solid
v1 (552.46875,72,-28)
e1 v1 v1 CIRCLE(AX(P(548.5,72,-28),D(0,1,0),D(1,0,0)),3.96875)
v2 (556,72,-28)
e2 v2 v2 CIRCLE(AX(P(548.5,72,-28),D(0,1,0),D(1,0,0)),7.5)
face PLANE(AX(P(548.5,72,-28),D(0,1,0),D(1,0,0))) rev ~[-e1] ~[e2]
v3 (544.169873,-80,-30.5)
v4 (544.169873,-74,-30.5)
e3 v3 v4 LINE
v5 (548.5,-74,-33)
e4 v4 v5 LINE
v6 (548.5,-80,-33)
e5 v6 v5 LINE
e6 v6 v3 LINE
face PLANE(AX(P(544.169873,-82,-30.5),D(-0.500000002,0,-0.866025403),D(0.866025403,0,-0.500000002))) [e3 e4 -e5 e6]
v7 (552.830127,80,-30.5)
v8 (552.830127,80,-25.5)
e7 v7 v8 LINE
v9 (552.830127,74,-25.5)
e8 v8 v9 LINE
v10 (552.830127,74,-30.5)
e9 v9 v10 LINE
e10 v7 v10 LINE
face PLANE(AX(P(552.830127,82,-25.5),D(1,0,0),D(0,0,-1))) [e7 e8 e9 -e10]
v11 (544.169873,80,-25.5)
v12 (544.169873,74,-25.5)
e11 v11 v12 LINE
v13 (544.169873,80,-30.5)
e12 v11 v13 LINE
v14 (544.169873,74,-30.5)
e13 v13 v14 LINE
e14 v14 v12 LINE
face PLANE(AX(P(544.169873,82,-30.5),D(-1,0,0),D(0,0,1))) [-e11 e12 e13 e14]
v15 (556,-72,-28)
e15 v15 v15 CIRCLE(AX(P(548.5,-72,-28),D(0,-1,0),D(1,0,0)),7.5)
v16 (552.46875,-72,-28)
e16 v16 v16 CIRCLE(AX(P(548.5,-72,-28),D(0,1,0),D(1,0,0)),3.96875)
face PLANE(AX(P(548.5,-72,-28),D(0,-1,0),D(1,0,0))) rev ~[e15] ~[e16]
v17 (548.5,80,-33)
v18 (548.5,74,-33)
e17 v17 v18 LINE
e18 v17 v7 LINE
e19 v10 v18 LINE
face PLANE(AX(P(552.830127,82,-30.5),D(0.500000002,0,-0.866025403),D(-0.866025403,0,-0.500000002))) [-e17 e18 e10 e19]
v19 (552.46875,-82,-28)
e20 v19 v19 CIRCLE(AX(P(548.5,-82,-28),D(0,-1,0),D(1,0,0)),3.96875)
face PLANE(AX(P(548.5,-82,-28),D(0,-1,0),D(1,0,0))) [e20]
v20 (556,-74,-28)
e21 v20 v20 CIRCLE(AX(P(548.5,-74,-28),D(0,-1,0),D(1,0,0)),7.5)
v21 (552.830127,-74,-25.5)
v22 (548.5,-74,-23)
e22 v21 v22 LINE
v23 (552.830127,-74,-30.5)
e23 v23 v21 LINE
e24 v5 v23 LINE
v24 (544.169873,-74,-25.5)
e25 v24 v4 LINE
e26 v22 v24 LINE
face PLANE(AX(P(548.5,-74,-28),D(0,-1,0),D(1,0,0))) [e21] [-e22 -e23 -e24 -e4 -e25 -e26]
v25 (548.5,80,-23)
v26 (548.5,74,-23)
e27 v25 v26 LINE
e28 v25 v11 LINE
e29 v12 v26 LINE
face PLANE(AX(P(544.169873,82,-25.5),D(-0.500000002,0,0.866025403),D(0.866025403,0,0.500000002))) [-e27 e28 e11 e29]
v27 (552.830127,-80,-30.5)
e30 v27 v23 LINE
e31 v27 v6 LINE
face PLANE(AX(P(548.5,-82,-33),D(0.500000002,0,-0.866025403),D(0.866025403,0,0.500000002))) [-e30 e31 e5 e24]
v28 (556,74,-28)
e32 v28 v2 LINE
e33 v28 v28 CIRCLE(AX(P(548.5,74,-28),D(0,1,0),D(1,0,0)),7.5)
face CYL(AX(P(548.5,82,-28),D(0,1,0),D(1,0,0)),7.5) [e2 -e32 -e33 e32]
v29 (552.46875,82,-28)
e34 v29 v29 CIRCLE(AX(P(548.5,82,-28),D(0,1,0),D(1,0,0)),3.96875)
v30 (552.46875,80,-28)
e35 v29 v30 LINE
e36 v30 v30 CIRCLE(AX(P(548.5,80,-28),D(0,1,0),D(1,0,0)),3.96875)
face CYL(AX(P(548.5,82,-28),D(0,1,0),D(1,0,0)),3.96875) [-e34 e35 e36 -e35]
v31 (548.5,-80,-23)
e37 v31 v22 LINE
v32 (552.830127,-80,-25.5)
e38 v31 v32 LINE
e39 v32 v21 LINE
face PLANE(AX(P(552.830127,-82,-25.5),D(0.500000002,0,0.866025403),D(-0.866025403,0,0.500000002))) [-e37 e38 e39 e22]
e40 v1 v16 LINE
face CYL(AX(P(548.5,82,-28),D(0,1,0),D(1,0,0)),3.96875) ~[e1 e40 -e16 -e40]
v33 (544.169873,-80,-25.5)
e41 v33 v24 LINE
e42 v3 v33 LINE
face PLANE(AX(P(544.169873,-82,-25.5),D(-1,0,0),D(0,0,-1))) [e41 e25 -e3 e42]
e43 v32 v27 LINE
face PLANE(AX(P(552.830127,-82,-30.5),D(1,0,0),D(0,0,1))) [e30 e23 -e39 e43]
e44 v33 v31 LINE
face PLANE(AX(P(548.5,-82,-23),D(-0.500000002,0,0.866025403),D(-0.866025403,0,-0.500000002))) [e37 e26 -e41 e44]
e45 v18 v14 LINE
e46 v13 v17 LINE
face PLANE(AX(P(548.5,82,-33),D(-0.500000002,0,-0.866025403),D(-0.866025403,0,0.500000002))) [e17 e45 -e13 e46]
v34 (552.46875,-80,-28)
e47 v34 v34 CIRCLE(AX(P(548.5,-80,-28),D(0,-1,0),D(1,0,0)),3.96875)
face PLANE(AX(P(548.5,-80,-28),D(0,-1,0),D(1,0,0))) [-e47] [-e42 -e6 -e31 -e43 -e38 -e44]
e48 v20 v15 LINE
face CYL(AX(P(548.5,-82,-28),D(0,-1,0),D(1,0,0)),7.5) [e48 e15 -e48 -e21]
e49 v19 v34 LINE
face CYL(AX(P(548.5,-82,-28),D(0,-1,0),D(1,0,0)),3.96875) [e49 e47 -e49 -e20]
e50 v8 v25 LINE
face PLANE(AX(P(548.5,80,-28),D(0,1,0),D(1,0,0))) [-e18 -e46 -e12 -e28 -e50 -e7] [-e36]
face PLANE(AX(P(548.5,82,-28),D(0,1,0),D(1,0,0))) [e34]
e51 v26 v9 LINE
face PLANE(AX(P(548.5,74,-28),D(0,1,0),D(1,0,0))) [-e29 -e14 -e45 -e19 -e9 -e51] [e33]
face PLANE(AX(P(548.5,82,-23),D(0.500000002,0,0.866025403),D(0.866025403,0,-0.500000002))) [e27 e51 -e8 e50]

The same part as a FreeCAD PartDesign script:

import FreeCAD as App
import Part
import Sketcher
from FreeCAD import Vector
Q = App.Units.Quantity


def add_polygon(sketch, points):
    """Adds a closed chain of lines whose ends are joined by coincident constraints."""
    first, n = sketch.GeometryCount, len(points)
    for a, b in zip(points, points[1:] + points[:1]):
        sketch.addGeometry(Part.LineSegment(App.Vector(*a, 0), App.Vector(*b, 0)), False)
    for i in range(n):
        sketch.addConstraint(Sketcher.Constraint("Coincident", first + i, 2, first + (i + 1) % n, 1))

doc = App.newDocument("Part")
body = doc.addObject("PartDesign::Body", "Body")

# Sketch on XZ plane
sketch1 = doc.addObject("Sketcher::SketchObject", "Sketch")
body.addObject(sketch1)
sketch1.AttachmentSupport = (doc.XZ_Plane, [""])
sketch1.MapMode = "FlatFace"
sketch1.AttachmentOffset = App.Placement(Vector(0, 0, -82), App.Rotation())
sketch1.addGeometry(Part.Circle(Vector(500, 56, 0), Vector(0, 0, 1), 3.96875), False)
sketch1.addConstraint([
    Sketcher.Constraint("DistanceX", -1, 1, 0, 3, 500.0),
    Sketcher.Constraint("DistanceY", -1, 1, 0, 3, 56.0),
    Sketcher.Constraint("Diameter", 0, 7.9375),
])
pad1 = doc.addObject("PartDesign::Pad", "Pad")
body.addObject(pad1)
pad1.Profile = sketch1
pad1.Length = 164

# Sketch on XZ plane
sketch2 = doc.addObject("Sketcher::SketchObject", "Sketch001")
body.addObject(sketch2)
sketch2.AttachmentSupport = (doc.XZ_Plane, [""])
sketch2.MapMode = "FlatFace"
sketch2.AttachmentOffset = App.Placement(Vector(0, 0, -82), App.Rotation())
sketch2.addGeometry(Part.Circle(Vector(500, 56, 0), Vector(0, 0, 1), 7.5), False)
sketch2.addConstraint([
    Sketcher.Constraint("Diameter", 0, 15.0),
    Sketcher.Constraint("DistanceX", -1, 1, 0, 3, 500.0),
    Sketcher.Constraint("DistanceY", -1, 1, 0, 3, 56.0),
])
pad2 = doc.addObject("PartDesign::Pad", "Pad001")
body.addObject(pad2)
pad2.Profile = sketch2
pad2.Length = 10

# Sketch on XZ plane
sketch3 = doc.addObject("Sketcher::SketchObject", "Sketch002")
body.addObject(sketch3)
sketch3.AttachmentSupport = (doc.XZ_Plane, [""])
sketch3.MapMode = "FlatFace"
sketch3.AttachmentOffset = App.Placement(Vector(0, 0, -82), App.Rotation())
sketch3.addGeometry(Part.Circle(Vector(500, 56, 0), Vector(0, 0, 1), 7.5), False)  # 0
add_polygon(sketch3, [(495.669873, 53.5), (500, 51), (504.330127, 53.5), (504.330127, 58.5), (500, 61), (495.669873, 58.5)])  # lines 1-6
sketch3.addConstraint([
    Sketcher.Constraint("Vertical", 3),
    Sketcher.Constraint("Vertical", 6),
    Sketcher.Constraint("Parallel", 1, 4),
    Sketcher.Constraint("Parallel", 2, 5),
    Sketcher.Constraint("Horizontal", 3, 2, 5, 2),
    Sketcher.Constraint("Horizontal", 2, 2, 6, 2),
    Sketcher.Constraint("Vertical", 0, 3, 1, 2),
    Sketcher.Constraint("Vertical", 1, 2, 4, 2),
    Sketcher.Constraint("Diameter", 0, 15.0),
    Sketcher.Constraint("DistanceY", 3, 1, 3, 2, 5.0),
    Sketcher.Constraint("Angle", 1, Q("-30 deg")),
    Sketcher.Constraint("Distance", 1, 5.0),
    Sketcher.Constraint("DistanceX", -1, 1, 0, 3, 500.0),
    Sketcher.Constraint("DistanceY", -1, 1, 0, 3, 56.0),
    Sketcher.Constraint("DistanceY", -1, 1, 1, 2, 51.0),
])
pocket1 = doc.addObject("PartDesign::Pocket", "Pocket")
body.addObject(pocket1)
pocket1.Profile = sketch3
pocket1.Length = 8
pocket1.Reversed = True

# Sketch on XZ plane
sketch4 = doc.addObject("Sketcher::SketchObject", "Sketch003")
body.addObject(sketch4)
sketch4.AttachmentSupport = (doc.XZ_Plane, [""])
sketch4.MapMode = "FlatFace"
sketch4.AttachmentOffset = App.Placement(Vector(0, 0, -82), App.Rotation())
sketch4.addGeometry([
    Part.Circle(Vector(500, 56, 0), Vector(0, 0, 1), 7.5),
    Part.Circle(Vector(500, 56, 0), Vector(0, 0, 1), 3.96875),
], False)
sketch4.addConstraint([
    Sketcher.Constraint("Coincident", 1, 3, 0, 3),
    Sketcher.Constraint("Diameter", 0, 15.0),
    Sketcher.Constraint("DistanceX", -1, 1, 0, 3, 500.0),
    Sketcher.Constraint("DistanceY", -1, 1, 0, 3, 56.0),
    Sketcher.Constraint("Diameter", 1, 7.9375),
])
pocket2 = doc.addObject("PartDesign::Pocket", "Pocket001")
body.addObject(pocket2)
pocket2.Profile = sketch4
pocket2.Length = 2
pocket2.Reversed = True

# Sketch on XZ plane
sketch5 = doc.addObject("Sketcher::SketchObject", "Sketch004")
body.addObject(sketch5)
sketch5.AttachmentSupport = (doc.XZ_Plane, [""])
sketch5.MapMode = "FlatFace"
sketch5.AttachmentOffset = App.Placement(Vector(0, 0, 82), App.Rotation())
sketch5.addGeometry(Part.Circle(Vector(500, 56, 0), Vector(0, 0, 1), 7.5), False)
sketch5.addConstraint([
    Sketcher.Constraint("Diameter", 0, 15.0),
    Sketcher.Constraint("DistanceX", -1, 1, 0, 3, 500.0),
    Sketcher.Constraint("DistanceY", -1, 1, 0, 3, 56.0),
])
pad3 = doc.addObject("PartDesign::Pad", "Pad002")
body.addObject(pad3)
pad3.Profile = sketch5
pad3.Length = 10
pad3.Reversed = True

# Sketch on XZ plane
sketch6 = doc.addObject("Sketcher::SketchObject", "Sketch005")
body.addObject(sketch6)
sketch6.AttachmentSupport = (doc.XZ_Plane, [""])
sketch6.MapMode = "FlatFace"
sketch6.AttachmentOffset = App.Placement(Vector(0, 0, 82), App.Rotation())
sketch6.addGeometry(Part.Circle(Vector(500, 56, 0), Vector(0, 0, 1), 7.5), False)  # 0
add_polygon(sketch6, [(495.669873, 58.5), (500, 61), (504.330127, 58.5), (504.330127, 53.5), (500, 51), (495.669873, 53.5)])  # lines 1-6
sketch6.addConstraint([
    Sketcher.Constraint("Vertical", 3),
    Sketcher.Constraint("Vertical", 6),
    Sketcher.Constraint("Parallel", 1, 4),
    Sketcher.Constraint("Parallel", 2, 5),
    Sketcher.Constraint("Horizontal", 3, 2, 5, 2),
    Sketcher.Constraint("Horizontal", 2, 2, 6, 2),
    Sketcher.Constraint("Vertical", 0, 3, 1, 2),
    Sketcher.Constraint("Vertical", 1, 2, 4, 2),
    Sketcher.Constraint("Diameter", 0, 15.0),
    Sketcher.Constraint("DistanceY", 3, 2, 3, 1, 5.0),
    Sketcher.Constraint("Angle", 1, Q("30 deg")),
    Sketcher.Constraint("Distance", 1, 5.0),
    Sketcher.Constraint("DistanceX", -1, 1, 0, 3, 500.0),
    Sketcher.Constraint("DistanceY", -1, 1, 0, 3, 56.0),
    Sketcher.Constraint("DistanceY", -1, 1, 1, 2, 61.0),
])
pocket3 = doc.addObject("PartDesign::Pocket", "Pocket002")
body.addObject(pocket3)
pocket3.Profile = sketch6
pocket3.Length = 8

# Sketch on XZ plane
sketch7 = doc.addObject("Sketcher::SketchObject", "Sketch006")
body.addObject(sketch7)
sketch7.AttachmentSupport = (doc.XZ_Plane, [""])
sketch7.MapMode = "FlatFace"
sketch7.AttachmentOffset = App.Placement(Vector(0, 0, 82), App.Rotation())
sketch7.addGeometry([
    Part.Circle(Vector(500, 56, 0), Vector(0, 0, 1), 7.5),
    Part.Circle(Vector(500, 56, 0), Vector(0, 0, 1), 3.96875),
], False)
sketch7.addConstraint([
    Sketcher.Constraint("Coincident", 1, 3, 0, 3),
    Sketcher.Constraint("Diameter", 0, 15.0),
    Sketcher.Constraint("DistanceX", -1, 1, 0, 3, 500.0),
    Sketcher.Constraint("DistanceY", -1, 1, 0, 3, 56.0),
    Sketcher.Constraint("Diameter", 1, 7.9375),
])
pocket4 = doc.addObject("PartDesign::Pocket", "Pocket003")
body.addObject(pocket4)
pocket4.Profile = sketch7
pocket4.Length = 2
body2 = doc.addObject("PartDesign::Body", "Body001")
doc.recompute()

body.Placement = App.Placement(Vector(48.5, 0, -84), App.Rotation(Vector(0, 0, 1), 0))
boolean = doc.addObject("PartDesign::Boolean", "Boolean")
body2.addObject(boolean)
boolean.Type = "Fuse"
boolean.addObjects([body])

doc.recompute()
